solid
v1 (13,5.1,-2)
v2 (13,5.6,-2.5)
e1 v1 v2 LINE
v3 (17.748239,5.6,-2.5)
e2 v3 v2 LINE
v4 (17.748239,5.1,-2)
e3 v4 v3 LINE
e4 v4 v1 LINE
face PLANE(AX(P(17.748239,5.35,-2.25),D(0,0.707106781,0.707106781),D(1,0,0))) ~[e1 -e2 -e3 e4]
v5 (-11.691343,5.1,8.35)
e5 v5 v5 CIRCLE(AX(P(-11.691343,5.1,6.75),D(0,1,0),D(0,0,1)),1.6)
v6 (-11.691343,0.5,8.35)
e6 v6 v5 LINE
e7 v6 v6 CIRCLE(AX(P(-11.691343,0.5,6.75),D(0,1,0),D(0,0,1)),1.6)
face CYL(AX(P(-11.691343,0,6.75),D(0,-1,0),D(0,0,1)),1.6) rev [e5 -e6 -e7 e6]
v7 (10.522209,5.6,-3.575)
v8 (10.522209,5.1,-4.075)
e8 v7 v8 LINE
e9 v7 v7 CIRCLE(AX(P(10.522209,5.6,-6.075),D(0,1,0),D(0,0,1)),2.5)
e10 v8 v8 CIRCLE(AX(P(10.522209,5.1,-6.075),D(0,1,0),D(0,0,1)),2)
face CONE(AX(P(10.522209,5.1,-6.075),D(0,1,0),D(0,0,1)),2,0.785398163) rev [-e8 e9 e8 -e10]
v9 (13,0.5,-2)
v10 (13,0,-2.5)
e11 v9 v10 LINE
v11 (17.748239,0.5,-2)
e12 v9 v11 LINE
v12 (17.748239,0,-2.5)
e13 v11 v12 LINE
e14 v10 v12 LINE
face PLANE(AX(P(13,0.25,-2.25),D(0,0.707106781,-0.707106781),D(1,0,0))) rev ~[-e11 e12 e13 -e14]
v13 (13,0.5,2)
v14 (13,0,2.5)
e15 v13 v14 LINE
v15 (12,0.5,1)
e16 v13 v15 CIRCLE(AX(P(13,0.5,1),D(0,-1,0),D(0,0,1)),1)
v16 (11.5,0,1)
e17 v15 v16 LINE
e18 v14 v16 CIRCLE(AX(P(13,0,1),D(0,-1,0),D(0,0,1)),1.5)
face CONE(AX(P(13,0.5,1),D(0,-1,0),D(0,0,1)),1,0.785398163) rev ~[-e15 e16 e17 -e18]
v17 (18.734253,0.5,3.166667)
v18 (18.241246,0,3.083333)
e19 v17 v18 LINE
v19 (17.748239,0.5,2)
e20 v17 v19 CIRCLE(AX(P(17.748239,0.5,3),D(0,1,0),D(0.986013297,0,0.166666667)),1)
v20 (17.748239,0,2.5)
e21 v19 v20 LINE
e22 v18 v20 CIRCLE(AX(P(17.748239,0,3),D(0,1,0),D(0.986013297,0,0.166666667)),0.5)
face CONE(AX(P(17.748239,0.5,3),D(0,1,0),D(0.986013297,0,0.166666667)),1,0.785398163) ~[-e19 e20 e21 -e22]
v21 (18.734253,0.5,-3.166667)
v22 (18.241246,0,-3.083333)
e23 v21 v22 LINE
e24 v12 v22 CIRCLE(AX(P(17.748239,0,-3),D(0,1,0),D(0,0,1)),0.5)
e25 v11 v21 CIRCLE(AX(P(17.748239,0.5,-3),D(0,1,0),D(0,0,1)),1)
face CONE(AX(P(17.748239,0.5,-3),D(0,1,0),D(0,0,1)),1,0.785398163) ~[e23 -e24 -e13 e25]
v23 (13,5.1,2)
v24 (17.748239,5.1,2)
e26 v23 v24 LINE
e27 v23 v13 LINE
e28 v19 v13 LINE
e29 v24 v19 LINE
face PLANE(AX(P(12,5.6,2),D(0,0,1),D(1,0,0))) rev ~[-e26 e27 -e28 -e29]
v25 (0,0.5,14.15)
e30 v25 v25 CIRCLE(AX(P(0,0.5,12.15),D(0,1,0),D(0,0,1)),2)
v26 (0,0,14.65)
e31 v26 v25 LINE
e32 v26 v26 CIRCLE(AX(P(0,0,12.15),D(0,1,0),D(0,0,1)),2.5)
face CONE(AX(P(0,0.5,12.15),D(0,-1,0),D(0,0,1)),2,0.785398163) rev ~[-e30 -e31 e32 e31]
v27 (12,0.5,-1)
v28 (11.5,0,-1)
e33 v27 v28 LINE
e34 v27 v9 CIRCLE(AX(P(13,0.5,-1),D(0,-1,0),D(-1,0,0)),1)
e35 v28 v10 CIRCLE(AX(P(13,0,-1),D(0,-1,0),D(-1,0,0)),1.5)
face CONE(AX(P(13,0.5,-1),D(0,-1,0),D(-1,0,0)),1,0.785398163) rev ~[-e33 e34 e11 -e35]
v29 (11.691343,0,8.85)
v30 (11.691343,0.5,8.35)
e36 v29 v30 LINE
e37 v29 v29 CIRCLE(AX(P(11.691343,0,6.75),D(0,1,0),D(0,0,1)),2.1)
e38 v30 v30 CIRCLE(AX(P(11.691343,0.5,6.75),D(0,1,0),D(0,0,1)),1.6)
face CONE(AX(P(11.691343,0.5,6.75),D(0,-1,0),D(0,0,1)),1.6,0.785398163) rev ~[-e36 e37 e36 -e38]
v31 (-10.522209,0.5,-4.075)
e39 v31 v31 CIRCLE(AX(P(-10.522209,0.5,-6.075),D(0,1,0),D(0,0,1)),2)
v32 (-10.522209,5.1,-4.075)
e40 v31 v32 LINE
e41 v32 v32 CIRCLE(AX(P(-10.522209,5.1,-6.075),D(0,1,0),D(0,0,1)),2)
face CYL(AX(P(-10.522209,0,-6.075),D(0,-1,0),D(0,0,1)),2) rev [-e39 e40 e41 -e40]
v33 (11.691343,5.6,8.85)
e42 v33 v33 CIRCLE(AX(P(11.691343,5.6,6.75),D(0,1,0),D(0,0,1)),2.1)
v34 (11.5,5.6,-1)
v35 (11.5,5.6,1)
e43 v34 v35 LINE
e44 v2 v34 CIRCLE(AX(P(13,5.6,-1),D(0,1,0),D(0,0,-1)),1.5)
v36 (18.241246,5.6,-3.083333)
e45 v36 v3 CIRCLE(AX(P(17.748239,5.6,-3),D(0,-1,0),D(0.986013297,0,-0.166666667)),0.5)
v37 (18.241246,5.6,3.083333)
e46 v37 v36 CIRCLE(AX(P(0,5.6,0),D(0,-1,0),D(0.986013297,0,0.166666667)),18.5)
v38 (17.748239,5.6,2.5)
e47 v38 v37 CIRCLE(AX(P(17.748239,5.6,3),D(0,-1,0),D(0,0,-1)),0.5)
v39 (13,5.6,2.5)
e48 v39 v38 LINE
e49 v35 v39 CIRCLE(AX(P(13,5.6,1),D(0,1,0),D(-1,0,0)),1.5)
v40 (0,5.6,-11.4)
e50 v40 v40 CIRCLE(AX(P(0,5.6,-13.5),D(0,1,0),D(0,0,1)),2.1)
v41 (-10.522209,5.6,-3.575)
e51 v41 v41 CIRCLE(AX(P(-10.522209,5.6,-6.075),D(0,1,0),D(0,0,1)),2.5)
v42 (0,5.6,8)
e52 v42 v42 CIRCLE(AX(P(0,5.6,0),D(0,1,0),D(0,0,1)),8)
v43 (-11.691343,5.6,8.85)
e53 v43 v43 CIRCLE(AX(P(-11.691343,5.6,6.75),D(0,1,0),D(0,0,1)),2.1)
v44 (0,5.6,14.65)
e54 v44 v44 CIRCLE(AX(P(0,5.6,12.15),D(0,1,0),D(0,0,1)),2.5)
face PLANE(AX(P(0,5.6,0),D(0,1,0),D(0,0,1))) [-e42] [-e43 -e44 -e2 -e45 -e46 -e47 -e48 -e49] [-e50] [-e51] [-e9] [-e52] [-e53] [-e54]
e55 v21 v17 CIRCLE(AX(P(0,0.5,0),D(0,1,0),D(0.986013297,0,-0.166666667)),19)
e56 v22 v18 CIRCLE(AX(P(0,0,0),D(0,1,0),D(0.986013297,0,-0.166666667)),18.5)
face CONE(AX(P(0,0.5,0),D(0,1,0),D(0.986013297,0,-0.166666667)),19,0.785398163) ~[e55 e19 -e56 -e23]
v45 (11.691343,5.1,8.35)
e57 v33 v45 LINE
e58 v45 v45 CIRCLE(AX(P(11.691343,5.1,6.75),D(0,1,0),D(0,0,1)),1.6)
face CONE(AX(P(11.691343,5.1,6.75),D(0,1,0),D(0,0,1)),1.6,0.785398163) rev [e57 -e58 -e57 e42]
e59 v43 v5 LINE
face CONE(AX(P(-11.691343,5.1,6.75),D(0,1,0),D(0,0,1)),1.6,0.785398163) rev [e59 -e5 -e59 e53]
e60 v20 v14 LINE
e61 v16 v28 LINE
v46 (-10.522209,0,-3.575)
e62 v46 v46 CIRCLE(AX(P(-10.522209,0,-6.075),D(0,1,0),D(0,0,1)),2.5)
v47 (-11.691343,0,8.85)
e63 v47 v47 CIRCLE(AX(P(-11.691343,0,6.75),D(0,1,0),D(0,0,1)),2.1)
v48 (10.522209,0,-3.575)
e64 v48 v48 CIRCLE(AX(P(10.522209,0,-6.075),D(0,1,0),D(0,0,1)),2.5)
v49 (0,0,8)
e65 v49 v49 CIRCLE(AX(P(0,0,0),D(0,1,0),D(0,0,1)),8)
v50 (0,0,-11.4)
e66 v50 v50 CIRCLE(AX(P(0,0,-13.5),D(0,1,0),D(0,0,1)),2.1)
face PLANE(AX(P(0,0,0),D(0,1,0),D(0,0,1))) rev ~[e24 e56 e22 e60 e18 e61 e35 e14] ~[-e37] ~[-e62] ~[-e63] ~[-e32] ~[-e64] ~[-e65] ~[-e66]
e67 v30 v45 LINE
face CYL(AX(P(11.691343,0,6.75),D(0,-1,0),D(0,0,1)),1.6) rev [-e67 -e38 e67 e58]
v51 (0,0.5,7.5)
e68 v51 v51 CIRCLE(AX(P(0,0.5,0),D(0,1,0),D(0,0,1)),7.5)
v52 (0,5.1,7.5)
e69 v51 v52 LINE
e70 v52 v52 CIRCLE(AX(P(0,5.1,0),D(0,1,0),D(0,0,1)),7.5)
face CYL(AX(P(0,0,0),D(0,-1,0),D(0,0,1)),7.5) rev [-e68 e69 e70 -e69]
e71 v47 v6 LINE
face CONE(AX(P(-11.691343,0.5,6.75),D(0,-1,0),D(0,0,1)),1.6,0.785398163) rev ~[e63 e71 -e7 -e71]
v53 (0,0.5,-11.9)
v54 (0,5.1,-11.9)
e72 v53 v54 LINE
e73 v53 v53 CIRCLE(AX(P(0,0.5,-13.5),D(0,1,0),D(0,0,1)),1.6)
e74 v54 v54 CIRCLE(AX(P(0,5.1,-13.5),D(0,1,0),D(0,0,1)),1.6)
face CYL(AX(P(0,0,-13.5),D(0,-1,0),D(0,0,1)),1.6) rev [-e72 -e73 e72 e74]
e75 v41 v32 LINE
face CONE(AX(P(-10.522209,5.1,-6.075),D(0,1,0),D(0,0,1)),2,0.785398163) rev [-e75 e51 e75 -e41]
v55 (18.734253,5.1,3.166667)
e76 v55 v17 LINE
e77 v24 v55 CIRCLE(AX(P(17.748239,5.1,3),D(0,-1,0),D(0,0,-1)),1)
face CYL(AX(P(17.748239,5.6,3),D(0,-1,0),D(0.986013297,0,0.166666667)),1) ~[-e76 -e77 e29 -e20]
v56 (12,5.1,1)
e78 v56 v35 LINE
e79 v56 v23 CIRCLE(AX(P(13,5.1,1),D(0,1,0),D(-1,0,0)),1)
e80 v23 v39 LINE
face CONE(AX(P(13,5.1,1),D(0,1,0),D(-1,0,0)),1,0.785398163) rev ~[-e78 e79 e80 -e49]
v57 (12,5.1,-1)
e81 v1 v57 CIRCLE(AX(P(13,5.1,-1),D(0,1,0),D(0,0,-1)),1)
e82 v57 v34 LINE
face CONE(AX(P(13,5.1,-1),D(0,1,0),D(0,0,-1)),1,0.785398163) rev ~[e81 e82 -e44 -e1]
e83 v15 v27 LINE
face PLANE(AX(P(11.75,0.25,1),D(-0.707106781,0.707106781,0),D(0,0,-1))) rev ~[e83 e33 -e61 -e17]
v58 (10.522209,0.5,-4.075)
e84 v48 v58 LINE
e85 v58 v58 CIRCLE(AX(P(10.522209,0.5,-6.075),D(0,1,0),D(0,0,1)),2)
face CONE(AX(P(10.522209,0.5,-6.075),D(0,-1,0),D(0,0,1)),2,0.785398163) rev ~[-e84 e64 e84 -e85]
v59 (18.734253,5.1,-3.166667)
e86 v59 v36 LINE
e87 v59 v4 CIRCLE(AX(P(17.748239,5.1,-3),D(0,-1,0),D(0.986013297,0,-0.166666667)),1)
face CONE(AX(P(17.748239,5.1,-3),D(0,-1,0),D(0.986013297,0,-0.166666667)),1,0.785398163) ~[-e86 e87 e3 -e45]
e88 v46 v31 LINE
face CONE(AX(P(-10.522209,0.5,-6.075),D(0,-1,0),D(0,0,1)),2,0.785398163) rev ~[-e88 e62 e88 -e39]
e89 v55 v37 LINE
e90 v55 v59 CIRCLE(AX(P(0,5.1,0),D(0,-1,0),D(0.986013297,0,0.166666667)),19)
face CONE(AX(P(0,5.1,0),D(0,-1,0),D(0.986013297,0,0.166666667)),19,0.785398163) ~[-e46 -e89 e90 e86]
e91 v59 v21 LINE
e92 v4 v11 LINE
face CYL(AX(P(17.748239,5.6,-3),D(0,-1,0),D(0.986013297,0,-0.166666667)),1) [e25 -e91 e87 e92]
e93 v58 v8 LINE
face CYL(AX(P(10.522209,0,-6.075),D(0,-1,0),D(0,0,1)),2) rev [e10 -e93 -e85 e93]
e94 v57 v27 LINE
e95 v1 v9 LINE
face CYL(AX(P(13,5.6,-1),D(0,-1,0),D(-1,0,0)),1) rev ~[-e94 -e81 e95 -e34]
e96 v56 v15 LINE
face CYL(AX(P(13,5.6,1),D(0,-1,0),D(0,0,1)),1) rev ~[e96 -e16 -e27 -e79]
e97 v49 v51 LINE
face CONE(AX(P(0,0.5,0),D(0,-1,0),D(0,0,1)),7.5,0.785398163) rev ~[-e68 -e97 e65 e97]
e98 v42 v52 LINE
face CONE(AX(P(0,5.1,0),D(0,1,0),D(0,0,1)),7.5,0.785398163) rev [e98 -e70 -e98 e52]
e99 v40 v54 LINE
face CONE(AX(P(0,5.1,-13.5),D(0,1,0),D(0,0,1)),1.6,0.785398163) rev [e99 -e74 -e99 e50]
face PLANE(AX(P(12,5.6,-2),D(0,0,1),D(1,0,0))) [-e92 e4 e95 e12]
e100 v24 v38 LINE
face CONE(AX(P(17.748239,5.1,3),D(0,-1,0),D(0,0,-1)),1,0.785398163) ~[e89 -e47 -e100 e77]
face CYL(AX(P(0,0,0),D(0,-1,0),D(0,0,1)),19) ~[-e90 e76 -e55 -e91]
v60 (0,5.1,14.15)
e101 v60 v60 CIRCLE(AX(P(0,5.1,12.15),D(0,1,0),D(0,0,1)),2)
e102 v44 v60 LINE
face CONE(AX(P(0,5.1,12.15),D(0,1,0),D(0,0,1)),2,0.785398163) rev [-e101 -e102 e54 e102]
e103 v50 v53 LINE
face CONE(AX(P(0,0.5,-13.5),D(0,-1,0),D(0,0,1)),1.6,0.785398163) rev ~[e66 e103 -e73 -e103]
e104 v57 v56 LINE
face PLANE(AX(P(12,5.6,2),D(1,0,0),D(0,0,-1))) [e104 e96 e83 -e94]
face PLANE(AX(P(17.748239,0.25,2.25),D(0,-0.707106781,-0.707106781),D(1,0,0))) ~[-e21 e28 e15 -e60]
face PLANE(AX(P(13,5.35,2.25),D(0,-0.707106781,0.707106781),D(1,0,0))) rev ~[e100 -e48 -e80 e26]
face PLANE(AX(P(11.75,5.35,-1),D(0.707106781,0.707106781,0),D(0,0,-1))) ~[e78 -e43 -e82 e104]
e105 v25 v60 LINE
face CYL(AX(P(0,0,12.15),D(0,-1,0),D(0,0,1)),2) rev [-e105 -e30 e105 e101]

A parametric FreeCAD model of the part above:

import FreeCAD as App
import Part
import Sketcher
from FreeCAD import Vector
Q = App.Units.Quantity


def edges_at(feature, points):
    """Names of the edges that pass closest to the given points."""
    edges = feature.Shape.Edges
    near = lambda p: min(range(len(edges)), key=lambda i: edges[i].distToShape(Part.Vertex(*p))[0])
    return sorted({f"Edge{near(p) + 1}" for p in points})


def add_polygon(sketch, points):
    """Adds a closed chain of lines whose ends are joined by coincident constraints."""
    first, n = sketch.GeometryCount, len(points)
    for a, b in zip(points, points[1:] + points[:1]):
        sketch.addGeometry(Part.LineSegment(App.Vector(*a, 0), App.Vector(*b, 0)), False)
    for i in range(n):
        sketch.addConstraint(Sketcher.Constraint("Coincident", first + i, 2, first + (i + 1) % n, 1))

doc = App.newDocument("Part")
body = doc.addObject("PartDesign::Body", "Body")

sketch1 = body.newObject("Sketcher::SketchObject", "Sketch")
sketch1.AttachmentSupport = (doc.getObject("XZ_Plane"), [""])
sketch1.MapMode = "FlatFace"
sketch1.addGeometry([
    Part.Circle(Vector(0, 0, 0), Vector(0, 0, 1), 19),
    Part.Circle(Vector(-10.5, -6.1, 0), Vector(0, 0, 1), 2),
    Part.Circle(Vector(0, -13.5, 0), Vector(0, 0, 1), 1.6),
    Part.Circle(Vector(-11.7, 6.8, 0), Vector(0, 0, 1), 1.6),
    Part.Circle(Vector(0, 0, 0), Vector(0, 0, 1), 7.5),
    Part.Circle(Vector(10.5, -6.1, 0), Vector(0, 0, 1), 2),
    Part.Circle(Vector(0, 12.2, 0), Vector(0, 0, 1), 2),
    Part.Circle(Vector(11.7, 6.8, 0), Vector(0, 0, 1), 1.6),
], False)
sketch1.addConstraint([
    Sketcher.Constraint("Coincident", 0, 3, -1, 1),
    Sketcher.Constraint("Coincident", 4, 3, -1, 1),
    Sketcher.Constraint("Equal", 2, 3),
    Sketcher.Constraint("Equal", 1, 5),
    Sketcher.Constraint("Equal", 5, 6),
    Sketcher.Constraint("Equal", 3, 7),
    Sketcher.Constraint("Symmetric", 1, 3, 5, 3, -2),
    Sketcher.Constraint("Symmetric", 3, 3, 7, 3, -2),
    Sketcher.Constraint("PointOnObject", 2, 3, -2),
    Sketcher.Constraint("PointOnObject", 6, 3, -2),
    Sketcher.Constraint("Diameter", 0, Q("38 mm")),
    Sketcher.Constraint("Diameter", 1, Q("4 mm")),
    Sketcher.Constraint("Diameter", 4, Q("15 mm")),
    Sketcher.Constraint("Diameter", 2, Q("3.2 mm")),
    Sketcher.Constraint("DistanceY", 2, 3, -1, 1, Q("13.5 mm")),
    Sketcher.Constraint("DistanceY", 3, 3, 6, 3, Q("5.4 mm")),
    Sketcher.Constraint("DistanceY", -1, 1, 3, 3, Q("6.75 mm")),
    Sketcher.Constraint("DistanceY", 1, 3, -1, 1, Q("6.075 mm")),
    Sketcher.Constraint("DistanceX", 1, 3, -1, 1, Q("10.522209 mm")),
    Sketcher.Constraint("DistanceX", 3, 3, 5, 3, Q("22.213552 mm")),
])
pad1 = body.newObject("PartDesign::Pad", "Pad")
pad1.Profile = sketch1
pad1.Length = 5.6
pad1.Reversed = True

sketch2 = body.newObject("Sketcher::SketchObject", "Sketch001")
sketch2.AttachmentSupport = (doc.getObject("XZ_Plane"), [""])
sketch2.MapMode = "FlatFace"
sketch2.AttachmentOffset = App.Placement(Vector(0, 0, -5.6), App.Rotation())
add_polygon(sketch2, [(12, -2), (12, 2), (27.2, 2), (27.2, -2)])
sketch2.addConstraint([
    Sketcher.Constraint("Vertical", 0),
    Sketcher.Constraint("Horizontal", 1),
    Sketcher.Constraint("Vertical", 2),
    Sketcher.Constraint("Horizontal", 3),
    Sketcher.Constraint("DistanceY", 0, 1, 0, 2, Q("4 mm")),
    Sketcher.Constraint("DistanceX", -1, 1, 0, 2, Q("12 mm")),
    Sketcher.Constraint("DistanceY", -1, 1, 0, 2, Q("2 mm")),
    Sketcher.Constraint("DistanceX", 1, 1, 1, 2, Q("15.178247 mm")),
])
pocket1 = body.newObject("PartDesign::Pocket", "Pocket")
pocket1.Profile = sketch2
pocket1.Length = 10
pocket1.Reversed = True
doc.recompute()

fillet = body.newObject("PartDesign::Fillet", "Fillet")
fillet.Base = (pocket1, edges_at(pocket1, [
    (12, 2.8, 2),
    (18.894, 2.8, -2),
    (12, 2.8, -2),
    (18.894, 2.8, 2),
]))
fillet.Radius = 1
doc.recompute()

chamfer = body.newObject("PartDesign::Chamfer", "Chamfer")
chamfer.Base = (fillet, edges_at(fillet, [
    (-19, 5.6, 0),
    (-19, 0, 0),
    (15.374, 5.6, -2),
    (15.374, 5.6, 2),
    (12, 5.6, 0),
    (18.512, 5.6, -2.355),
    (18.512, 5.6, 2.355),
    (15.374, 0, 2),
    (15.374, 0, -2),
    (12, 0, 0),
    (18.512, 0, -2.355),
    (18.512, 0, 2.355),
    (12.293, 5.6, 1.707),
    (12.293, 0, 1.707),
    (12.293, 5.6, -1.707),
    (12.293, 0, -1.707),
]))
chamfer.Size = 0.5
doc.recompute()

chamfer2 = body.newObject("PartDesign::Chamfer", "Chamfer001")
chamfer2.Base = (chamfer, edges_at(chamfer, [
    (0, 5.6, 10.15),
    (0, 0, -15.1),
    (11.691, 0, 5.15),
    (-11.691, 0, 5.15),
    (0, 0, -7.5),
    (-10.522, 0, -8.075),
    (10.522, 0, -8.075),
    (0, 0, 10.15),
    (10.522, 5.6, -8.075),
    (-10.522, 5.6, -8.075),
    (0, 5.6, -7.5),
    (-11.691, 5.6, 5.15),
    (11.691, 5.6, 5.15),
    (0, 5.6, -15.1),
]))
chamfer2.Size = 0.5

doc.recompute()
